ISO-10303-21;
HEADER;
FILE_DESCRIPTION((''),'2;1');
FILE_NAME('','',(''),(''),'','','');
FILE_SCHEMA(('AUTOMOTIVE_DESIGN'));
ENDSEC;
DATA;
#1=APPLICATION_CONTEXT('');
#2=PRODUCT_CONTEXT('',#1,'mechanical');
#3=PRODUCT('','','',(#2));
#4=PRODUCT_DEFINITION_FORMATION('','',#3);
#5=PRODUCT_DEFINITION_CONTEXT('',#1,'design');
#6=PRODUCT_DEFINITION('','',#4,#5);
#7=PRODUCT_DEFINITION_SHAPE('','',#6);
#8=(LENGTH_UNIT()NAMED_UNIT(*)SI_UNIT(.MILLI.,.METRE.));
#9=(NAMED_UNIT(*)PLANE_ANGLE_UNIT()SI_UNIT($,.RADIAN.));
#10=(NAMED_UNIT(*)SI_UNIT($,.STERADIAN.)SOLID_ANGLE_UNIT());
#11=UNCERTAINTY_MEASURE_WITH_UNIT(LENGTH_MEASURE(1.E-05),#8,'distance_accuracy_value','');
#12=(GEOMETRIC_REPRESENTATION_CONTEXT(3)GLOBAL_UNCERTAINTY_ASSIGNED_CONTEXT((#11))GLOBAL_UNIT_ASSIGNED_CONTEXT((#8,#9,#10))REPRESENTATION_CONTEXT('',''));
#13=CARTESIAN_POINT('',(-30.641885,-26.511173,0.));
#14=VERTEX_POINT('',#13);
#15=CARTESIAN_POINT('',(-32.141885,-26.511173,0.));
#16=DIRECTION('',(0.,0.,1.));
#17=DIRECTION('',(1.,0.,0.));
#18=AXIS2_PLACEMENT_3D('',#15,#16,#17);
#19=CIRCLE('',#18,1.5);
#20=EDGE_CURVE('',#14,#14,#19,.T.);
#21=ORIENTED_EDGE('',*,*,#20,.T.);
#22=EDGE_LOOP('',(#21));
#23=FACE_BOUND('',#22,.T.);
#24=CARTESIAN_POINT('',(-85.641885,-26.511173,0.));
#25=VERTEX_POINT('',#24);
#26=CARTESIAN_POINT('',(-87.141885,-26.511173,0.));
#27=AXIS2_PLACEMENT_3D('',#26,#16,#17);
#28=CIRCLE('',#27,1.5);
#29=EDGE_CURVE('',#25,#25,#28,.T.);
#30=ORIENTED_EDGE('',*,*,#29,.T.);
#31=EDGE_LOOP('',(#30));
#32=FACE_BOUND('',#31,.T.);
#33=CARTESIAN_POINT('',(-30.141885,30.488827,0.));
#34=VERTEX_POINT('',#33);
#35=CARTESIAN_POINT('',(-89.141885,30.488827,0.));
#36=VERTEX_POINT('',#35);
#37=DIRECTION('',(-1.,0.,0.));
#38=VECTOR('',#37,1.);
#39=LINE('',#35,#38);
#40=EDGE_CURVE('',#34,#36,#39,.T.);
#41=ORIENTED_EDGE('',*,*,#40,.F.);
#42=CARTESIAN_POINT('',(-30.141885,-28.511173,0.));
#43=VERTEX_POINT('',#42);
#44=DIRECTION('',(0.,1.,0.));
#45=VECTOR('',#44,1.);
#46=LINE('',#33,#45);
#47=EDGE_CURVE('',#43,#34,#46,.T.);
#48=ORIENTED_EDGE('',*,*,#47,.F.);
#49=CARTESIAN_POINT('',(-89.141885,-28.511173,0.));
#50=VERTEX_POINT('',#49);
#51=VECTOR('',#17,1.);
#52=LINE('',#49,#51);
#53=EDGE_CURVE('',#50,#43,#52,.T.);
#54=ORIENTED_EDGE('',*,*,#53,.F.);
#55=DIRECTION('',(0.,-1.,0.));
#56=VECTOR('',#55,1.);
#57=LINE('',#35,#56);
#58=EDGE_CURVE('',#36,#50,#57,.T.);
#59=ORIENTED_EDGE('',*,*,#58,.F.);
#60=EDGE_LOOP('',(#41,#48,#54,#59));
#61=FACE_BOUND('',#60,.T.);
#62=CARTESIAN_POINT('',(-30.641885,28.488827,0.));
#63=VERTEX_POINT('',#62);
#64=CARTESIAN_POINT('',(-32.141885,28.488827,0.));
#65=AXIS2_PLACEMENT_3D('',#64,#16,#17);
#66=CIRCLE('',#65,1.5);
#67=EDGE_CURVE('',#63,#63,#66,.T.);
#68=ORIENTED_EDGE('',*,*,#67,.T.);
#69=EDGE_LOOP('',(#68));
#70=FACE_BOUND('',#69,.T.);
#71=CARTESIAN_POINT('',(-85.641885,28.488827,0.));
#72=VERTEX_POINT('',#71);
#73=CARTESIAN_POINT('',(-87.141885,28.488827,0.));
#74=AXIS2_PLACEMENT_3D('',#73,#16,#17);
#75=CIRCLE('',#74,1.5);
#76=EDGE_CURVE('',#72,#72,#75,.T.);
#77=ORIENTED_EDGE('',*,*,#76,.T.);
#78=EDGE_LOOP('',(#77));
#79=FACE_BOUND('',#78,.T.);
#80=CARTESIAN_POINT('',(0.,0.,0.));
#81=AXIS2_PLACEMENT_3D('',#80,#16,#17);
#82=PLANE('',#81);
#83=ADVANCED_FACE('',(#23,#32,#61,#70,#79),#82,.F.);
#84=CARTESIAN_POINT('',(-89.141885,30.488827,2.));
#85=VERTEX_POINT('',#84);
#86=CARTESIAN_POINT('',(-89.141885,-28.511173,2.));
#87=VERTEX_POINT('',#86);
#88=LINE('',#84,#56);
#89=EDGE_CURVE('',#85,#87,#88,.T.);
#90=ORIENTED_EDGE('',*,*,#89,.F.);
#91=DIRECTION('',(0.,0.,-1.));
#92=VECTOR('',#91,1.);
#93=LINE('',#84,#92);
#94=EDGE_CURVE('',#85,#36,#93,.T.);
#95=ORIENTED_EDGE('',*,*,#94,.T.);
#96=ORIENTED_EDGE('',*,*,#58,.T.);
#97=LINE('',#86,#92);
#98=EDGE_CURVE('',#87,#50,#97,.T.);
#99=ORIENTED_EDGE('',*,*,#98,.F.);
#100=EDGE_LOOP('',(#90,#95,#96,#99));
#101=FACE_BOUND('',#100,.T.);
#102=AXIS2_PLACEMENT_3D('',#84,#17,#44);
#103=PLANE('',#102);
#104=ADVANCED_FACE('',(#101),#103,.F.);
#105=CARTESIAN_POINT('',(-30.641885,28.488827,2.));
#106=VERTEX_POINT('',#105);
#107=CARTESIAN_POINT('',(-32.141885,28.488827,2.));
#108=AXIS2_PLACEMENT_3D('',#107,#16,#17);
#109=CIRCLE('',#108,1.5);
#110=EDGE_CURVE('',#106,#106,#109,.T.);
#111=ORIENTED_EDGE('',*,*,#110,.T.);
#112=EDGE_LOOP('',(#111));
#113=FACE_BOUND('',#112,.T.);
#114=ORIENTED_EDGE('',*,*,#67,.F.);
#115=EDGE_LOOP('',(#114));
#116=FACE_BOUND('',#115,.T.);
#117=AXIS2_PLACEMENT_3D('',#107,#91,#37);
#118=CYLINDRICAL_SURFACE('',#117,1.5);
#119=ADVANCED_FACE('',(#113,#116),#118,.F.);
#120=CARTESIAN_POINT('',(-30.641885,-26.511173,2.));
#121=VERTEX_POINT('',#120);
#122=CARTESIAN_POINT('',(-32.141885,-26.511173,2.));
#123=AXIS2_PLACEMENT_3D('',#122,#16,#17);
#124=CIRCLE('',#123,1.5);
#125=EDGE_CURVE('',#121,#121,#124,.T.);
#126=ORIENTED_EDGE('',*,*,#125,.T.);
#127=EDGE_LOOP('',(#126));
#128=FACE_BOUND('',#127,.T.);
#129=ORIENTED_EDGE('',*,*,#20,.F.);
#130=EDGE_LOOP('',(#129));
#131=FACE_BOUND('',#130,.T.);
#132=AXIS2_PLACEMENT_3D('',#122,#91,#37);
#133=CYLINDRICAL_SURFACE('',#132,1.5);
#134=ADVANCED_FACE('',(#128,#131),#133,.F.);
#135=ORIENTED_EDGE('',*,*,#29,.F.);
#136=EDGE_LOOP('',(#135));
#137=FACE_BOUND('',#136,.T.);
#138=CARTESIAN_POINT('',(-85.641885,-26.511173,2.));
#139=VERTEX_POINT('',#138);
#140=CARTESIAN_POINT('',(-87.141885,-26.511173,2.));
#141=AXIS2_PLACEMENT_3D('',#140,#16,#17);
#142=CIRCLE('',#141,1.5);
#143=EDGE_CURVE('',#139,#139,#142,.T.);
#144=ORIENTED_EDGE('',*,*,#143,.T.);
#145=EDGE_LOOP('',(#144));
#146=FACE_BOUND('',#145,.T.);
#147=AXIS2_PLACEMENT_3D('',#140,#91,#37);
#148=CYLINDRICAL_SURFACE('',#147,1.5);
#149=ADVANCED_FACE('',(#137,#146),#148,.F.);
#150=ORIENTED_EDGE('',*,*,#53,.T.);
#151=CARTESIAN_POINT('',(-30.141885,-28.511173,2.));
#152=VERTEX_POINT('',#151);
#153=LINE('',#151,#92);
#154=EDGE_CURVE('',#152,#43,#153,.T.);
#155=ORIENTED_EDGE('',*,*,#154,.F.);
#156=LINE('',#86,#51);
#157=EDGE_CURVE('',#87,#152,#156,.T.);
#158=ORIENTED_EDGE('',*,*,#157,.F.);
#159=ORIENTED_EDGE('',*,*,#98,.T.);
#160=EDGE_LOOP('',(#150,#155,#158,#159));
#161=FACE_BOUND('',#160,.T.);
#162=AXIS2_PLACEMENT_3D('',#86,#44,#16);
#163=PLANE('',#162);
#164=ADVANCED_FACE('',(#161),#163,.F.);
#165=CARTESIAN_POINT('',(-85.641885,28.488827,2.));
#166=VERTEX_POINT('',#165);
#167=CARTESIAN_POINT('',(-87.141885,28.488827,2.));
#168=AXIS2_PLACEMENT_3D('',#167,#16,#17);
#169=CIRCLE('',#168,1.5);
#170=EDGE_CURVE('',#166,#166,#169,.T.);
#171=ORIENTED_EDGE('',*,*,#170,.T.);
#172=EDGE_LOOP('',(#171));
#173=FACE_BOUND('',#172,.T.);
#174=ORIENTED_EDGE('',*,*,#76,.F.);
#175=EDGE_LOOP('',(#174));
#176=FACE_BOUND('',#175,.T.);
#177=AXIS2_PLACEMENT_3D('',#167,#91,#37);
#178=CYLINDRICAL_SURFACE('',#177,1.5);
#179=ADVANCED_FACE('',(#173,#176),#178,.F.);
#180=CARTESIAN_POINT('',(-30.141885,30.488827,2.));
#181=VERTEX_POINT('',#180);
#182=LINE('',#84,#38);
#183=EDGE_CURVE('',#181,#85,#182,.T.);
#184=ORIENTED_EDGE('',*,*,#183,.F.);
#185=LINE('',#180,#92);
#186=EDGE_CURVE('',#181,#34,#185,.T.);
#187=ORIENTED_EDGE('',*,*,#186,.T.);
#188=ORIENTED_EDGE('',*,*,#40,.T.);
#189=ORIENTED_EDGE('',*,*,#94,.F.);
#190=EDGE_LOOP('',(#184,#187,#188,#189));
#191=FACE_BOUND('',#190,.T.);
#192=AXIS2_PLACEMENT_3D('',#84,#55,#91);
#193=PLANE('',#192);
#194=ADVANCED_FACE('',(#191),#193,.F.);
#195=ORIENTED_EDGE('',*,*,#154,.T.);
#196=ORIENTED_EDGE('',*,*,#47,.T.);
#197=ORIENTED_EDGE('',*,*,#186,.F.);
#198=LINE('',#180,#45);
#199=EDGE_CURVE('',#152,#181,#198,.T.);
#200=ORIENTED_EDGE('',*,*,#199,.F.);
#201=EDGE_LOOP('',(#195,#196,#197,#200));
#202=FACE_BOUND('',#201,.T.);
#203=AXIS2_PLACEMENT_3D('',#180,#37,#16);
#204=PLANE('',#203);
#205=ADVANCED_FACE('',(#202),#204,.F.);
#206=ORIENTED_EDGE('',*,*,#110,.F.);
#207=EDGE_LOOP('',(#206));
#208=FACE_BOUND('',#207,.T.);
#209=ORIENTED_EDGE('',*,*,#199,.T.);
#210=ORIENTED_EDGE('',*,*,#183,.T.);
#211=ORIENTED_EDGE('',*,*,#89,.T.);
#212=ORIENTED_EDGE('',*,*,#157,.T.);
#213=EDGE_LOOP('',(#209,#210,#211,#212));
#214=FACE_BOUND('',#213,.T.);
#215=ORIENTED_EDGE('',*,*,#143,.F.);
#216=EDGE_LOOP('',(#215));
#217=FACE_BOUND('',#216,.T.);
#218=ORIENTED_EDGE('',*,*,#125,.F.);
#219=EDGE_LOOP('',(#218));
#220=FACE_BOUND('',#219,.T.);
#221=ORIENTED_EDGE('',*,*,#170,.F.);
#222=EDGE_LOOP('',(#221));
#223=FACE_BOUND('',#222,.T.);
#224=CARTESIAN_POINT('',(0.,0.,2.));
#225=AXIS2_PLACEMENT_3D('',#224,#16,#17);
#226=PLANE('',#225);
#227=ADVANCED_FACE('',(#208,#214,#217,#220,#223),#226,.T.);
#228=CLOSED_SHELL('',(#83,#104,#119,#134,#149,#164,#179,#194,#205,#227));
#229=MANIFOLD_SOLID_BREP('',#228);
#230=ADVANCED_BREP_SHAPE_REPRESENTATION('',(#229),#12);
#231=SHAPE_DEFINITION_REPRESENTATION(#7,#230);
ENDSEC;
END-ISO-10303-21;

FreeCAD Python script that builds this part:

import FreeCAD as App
import Part
import Sketcher

V = App.Vector
Q = App.Units.Quantity

doc = App.newDocument("Part")
params = doc.addObject("Spreadsheet::Sheet", "Params")
for row, (alias, value) in enumerate([
    ("sketch1_diameter", "3 mm"),
    ("sketch1_width", "59 mm"),
    ("pad1_length", "2 mm"),
], start=1):
    params.set(f"A{row}", alias)
    params.set(f"B{row}", "=" + value)
    params.setAlias(f"B{row}", alias)

body = doc.addObject("PartDesign::Body", "Body")

# Sketch on XY plane
sketch1 = body.newObject("Sketcher::SketchObject", "Sketch")
sketch1.AttachmentSupport = (doc.getObject("XY_Plane"), [""])
sketch1.MapMode = "FlatFace"
sketch1.addGeometry([
    Part.LineSegment(V(-89.1, 30.5, 0), V(-89.1, -28.5, 0)),  # 0
    Part.LineSegment(V(-89.1, -28.5, 0), V(-30.1, -28.5, 0)),  # 1
    Part.LineSegment(V(-30.1, -28.5, 0), V(-30.1, 30.5, 0)),  # 2
    Part.LineSegment(V(-30.1, 30.5, 0), V(-89.1, 30.5, 0)),  # 3
    Part.Circle(V(-87.1, -26.5, 0), V(0, 0, 1), 1.5),  # 4
    Part.Circle(V(-32.1, -26.5, 0), V(0, 0, 1), 1.5),  # 5
    Part.Circle(V(-87.1, 28.5, 0), V(0, 0, 1), 1.5),  # 6
    Part.Circle(V(-32.1, 28.5, 0), V(0, 0, 1), 1.5),  # 7
], False)
sketch1.addConstraint([
    Sketcher.Constraint("Coincident", 0, 2, 1, 1),
    Sketcher.Constraint("Coincident", 1, 2, 2, 1),
    Sketcher.Constraint("Coincident", 2, 2, 3, 1),
    Sketcher.Constraint("Coincident", 3, 2, 0, 1),
    Sketcher.Constraint("Vertical", 0),
    Sketcher.Constraint("Horizontal", 1),
    Sketcher.Constraint("Vertical", 2),
    Sketcher.Constraint("Horizontal", 3),
    Sketcher.Constraint("Equal", 4, 5),
    Sketcher.Constraint("Equal", 5, 6),
    Sketcher.Constraint("Equal", 6, 7),
    Sketcher.Constraint("Horizontal", 4, 3, 5, 3),
    Sketcher.Constraint("Horizontal", 6, 3, 7, 3),
    Sketcher.Constraint("Vertical", 4, 3, 6, 3),
    Sketcher.Constraint("Vertical", 5, 3, 7, 3),
    Sketcher.Constraint("Equal", 3, 0),
    Sketcher.Constraint("Diameter", 4, Q("3 mm")),
    Sketcher.Constraint("DistanceX", 1, 1, 1, 2, Q("59 mm")),
    Sketcher.Constraint("DistanceX", 4, 3, 5, 3, Q("55 mm")),
    Sketcher.Constraint("DistanceY", 4, 3, 6, 3, Q("55 mm")),
    Sketcher.Constraint("DistanceX", 0, 2, 4, 3, Q("2 mm")),
    Sketcher.Constraint("DistanceY", 0, 2, 4, 3, Q("2 mm")),
    Sketcher.Constraint("DistanceX", 4, 3, -1, 1, Q("87.141885 mm")),
    Sketcher.Constraint("DistanceY", 4, 3, -1, 1, Q("26.511173 mm")),
])
sketch1.setExpression("Constraints[16]", "Params.sketch1_diameter")
sketch1.setExpression("Constraints[17]", "Params.sketch1_width")
pad1 = body.newObject("PartDesign::Pad", "Pad")
pad1.Profile = sketch1
pad1.setExpression("Length", "Params.pad1_length")

doc.recompute()
